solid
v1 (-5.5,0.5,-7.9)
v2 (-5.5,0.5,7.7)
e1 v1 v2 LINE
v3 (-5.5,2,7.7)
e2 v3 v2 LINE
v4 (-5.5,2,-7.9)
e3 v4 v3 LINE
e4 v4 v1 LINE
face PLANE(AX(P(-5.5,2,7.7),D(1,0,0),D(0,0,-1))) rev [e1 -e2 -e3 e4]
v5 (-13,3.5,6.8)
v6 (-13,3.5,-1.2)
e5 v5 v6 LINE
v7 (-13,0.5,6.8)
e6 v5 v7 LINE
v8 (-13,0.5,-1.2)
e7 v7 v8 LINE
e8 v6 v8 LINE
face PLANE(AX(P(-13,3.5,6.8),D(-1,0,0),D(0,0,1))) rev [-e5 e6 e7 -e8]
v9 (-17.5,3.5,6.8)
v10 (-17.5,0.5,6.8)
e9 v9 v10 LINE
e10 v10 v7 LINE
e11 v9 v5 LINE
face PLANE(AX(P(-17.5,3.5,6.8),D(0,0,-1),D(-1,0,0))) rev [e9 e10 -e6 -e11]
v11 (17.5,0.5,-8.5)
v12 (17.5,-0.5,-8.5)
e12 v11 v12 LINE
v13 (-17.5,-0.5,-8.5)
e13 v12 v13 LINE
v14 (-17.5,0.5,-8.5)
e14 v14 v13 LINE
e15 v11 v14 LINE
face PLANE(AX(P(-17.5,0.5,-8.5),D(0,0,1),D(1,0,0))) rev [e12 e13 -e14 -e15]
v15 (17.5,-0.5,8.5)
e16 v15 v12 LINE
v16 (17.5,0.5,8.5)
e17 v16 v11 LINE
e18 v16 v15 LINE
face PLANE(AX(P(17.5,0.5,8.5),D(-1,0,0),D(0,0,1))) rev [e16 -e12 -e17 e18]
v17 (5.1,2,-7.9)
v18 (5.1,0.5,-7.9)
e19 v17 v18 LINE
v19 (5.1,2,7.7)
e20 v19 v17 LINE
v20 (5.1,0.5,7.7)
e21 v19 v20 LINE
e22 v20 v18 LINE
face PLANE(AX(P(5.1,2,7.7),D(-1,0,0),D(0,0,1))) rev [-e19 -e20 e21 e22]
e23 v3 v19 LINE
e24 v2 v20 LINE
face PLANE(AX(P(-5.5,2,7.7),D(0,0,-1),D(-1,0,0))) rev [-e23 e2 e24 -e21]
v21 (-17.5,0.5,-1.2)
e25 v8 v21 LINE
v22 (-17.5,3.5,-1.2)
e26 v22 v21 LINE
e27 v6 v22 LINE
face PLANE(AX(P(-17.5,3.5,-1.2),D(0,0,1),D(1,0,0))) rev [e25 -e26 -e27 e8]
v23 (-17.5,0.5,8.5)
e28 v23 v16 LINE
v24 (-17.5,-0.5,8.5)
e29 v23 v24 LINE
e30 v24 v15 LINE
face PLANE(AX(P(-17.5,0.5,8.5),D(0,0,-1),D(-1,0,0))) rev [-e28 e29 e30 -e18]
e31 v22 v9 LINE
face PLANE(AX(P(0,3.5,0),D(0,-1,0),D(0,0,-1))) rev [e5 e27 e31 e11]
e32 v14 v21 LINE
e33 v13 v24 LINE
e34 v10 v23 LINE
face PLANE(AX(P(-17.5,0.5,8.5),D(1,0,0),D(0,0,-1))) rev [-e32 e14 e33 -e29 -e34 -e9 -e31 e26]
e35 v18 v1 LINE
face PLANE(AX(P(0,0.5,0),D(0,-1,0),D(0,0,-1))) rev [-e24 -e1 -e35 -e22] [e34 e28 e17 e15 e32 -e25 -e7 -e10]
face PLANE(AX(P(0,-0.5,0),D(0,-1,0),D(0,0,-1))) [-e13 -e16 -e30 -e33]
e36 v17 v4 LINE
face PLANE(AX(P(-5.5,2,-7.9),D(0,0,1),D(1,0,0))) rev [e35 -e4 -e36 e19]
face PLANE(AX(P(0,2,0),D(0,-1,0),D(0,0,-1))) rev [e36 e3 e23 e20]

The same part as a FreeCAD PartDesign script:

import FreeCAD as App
import Part
import Sketcher
Q = App.Units.Quantity


def add_polygon(sketch, points):
    """Adds a closed chain of lines whose ends are joined by coincident constraints."""
    first, n = sketch.GeometryCount, len(points)
    for a, b in zip(points, points[1:] + points[:1]):
        sketch.addGeometry(Part.LineSegment(App.Vector(*a, 0), App.Vector(*b, 0)), False)
    for i in range(n):
        sketch.addConstraint(Sketcher.Constraint("Coincident", first + i, 2, first + (i + 1) % n, 1))

doc = App.newDocument("Part")
params = doc.addObject("Spreadsheet::Sheet", "Params")
for row, (alias, value) in enumerate([
    ("sketch1_width", "35 mm"),
    ("sketch1_height", "17 mm"),
    ("pad1_length", "1 mm"),
    ("sketch2_height", "8 mm"),
    ("sketch2_width", "4.5 mm"),
    ("pad2_length", "3 mm"),
    ("sketch3_width", "10.6 mm"),
    ("sketch3_height", "15.6 mm"),
    ("pad3_length", "1.5 mm"),
], start=1):
    params.set(f"A{row}", alias)
    params.set(f"B{row}", "=" + value)
    params.setAlias(f"B{row}", alias)

body = doc.addObject("PartDesign::Body", "Body")

sketch1 = body.newObject("Sketcher::SketchObject", "Sketch")
sketch1.AttachmentSupport = (doc.getObject("XZ_Plane"), [""])
sketch1.MapMode = "FlatFace"
add_polygon(sketch1, [(-18, -8), (-18, 8), (18, 8), (18, -8)])
sketch1.addConstraint([
    Sketcher.Constraint("Vertical", 0),
    Sketcher.Constraint("Horizontal", 1),
    Sketcher.Constraint("Vertical", 2),
    Sketcher.Constraint("Horizontal", 3),
    Sketcher.Constraint("Symmetric", 0, 2, 2, 2, -1, 1),
    Sketcher.Constraint("DistanceX", 1, 1, 1, 2, Q("35 mm")),
    Sketcher.Constraint("DistanceY", 0, 1, 0, 2, Q("17 mm")),
])
sketch1.setExpression("Constraints[9]", "Params.sketch1_width")
sketch1.setExpression("Constraints[10]", "Params.sketch1_height")
pad1 = body.newObject("PartDesign::Pad", "Pad")
pad1.Profile = sketch1
pad1.setExpression("Length", "Params.pad1_length")
pad1.Midplane = True

sketch2 = body.newObject("Sketcher::SketchObject", "Sketch001")
sketch2.AttachmentSupport = (doc.getObject("XZ_Plane"), [""])
sketch2.MapMode = "FlatFace"
sketch2.AttachmentOffset = App.Placement(App.Vector(0, 0, -0.5), App.Rotation())
add_polygon(sketch2, [(-17.5, -1.2), (-17.5, 6.8), (-13, 6.8), (-13, -1.2)])
sketch2.addConstraint([
    Sketcher.Constraint("Vertical", 0),
    Sketcher.Constraint("Horizontal", 1),
    Sketcher.Constraint("Vertical", 2),
    Sketcher.Constraint("Horizontal", 3),
    Sketcher.Constraint("DistanceY", 0, 1, 0, 2, Q("8 mm")),
    Sketcher.Constraint("DistanceX", 1, 1, 1, 2, Q("4.5 mm")),
    Sketcher.Constraint("DistanceX", 1, 2, -1, 1, Q("13 mm")),
    Sketcher.Constraint("DistanceY", -1, 1, 0, 2, Q("6.8 mm")),
])
sketch2.setExpression("Constraints[8]", "Params.sketch2_height")
sketch2.setExpression("Constraints[9]", "Params.sketch2_width")
pad2 = body.newObject("PartDesign::Pad", "Pad001")
pad2.Profile = sketch2
pad2.setExpression("Length", "Params.pad2_length")
pad2.Reversed = True

sketch3 = body.newObject("Sketcher::SketchObject", "Sketch002")
sketch3.AttachmentSupport = (doc.getObject("XZ_Plane"), [""])
sketch3.MapMode = "FlatFace"
sketch3.AttachmentOffset = App.Placement(App.Vector(0, 0, -0.5), App.Rotation())
add_polygon(sketch3, [(-6, -8), (-6, 8), (5, 8), (5, -8)])
sketch3.addConstraint([
    Sketcher.Constraint("Vertical", 0),
    Sketcher.Constraint("Horizontal", 1),
    Sketcher.Constraint("Vertical", 2),
    Sketcher.Constraint("Horizontal", 3),
    Sketcher.Constraint("DistanceX", 1, 1, 1, 2, Q("10.6 mm")),
    Sketcher.Constraint("DistanceY", 0, 1, 0, 2, Q("15.6 mm")),
    Sketcher.Constraint("DistanceX", 0, 2, -1, 1, Q("5.5 mm")),
    Sketcher.Constraint("DistanceY", -1, 1, 0, 2, Q("7.7 mm")),
])
sketch3.setExpression("Constraints[8]", "Params.sketch3_width")
sketch3.setExpression("Constraints[9]", "Params.sketch3_height")
pad3 = body.newObject("PartDesign::Pad", "Pad002")
pad3.Profile = sketch3
pad3.setExpression("Length", "Params.pad3_length")
pad3.Reversed = True

doc.recompute()
